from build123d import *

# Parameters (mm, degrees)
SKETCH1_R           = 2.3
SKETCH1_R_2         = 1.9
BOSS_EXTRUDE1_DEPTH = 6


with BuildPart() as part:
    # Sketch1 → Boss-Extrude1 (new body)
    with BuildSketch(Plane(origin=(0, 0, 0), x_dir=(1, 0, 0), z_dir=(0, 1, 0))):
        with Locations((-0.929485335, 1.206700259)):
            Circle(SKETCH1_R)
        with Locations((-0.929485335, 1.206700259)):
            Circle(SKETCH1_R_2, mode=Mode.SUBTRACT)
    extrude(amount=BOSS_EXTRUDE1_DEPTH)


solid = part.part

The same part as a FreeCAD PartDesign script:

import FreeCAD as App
import Part
import Sketcher
from FreeCAD import Vector
Q = App.Units.Quantity

doc = App.newDocument("Part")
body = doc.addObject("PartDesign::Body", "Body")

# Sketch on XZ plane
sketch1 = doc.addObject("Sketcher::SketchObject", "Sketch")
body.addObject(sketch1)
sketch1.AttachmentSupport = (doc.XZ_Plane, [""])
sketch1.MapMode = "FlatFace"
sketch1.addGeometry(Part.Circle(Vector(-0.929485, -1.2067, 0), Vector(0, 0, 1), 2.3), False)
sketch1.addGeometry(Part.Circle(Vector(-0.929485, -1.2067, 0), Vector(0, 0, 1), 1.9), False)
sketch1.addConstraint(Sketcher.Constraint("Coincident", 1, 3, 0, 3))
sketch1.addConstraint(Sketcher.Constraint("Diameter", 0, Q("4.6 mm")))
sketch1.addConstraint(Sketcher.Constraint("Diameter", 1, Q("3.8 mm")))
sketch1.addConstraint(Sketcher.Constraint("DistanceY", 0, 3, -1, 1, Q("1.2067 mm")))
sketch1.addConstraint(Sketcher.Constraint("DistanceX", 0, 3, -1, 1, Q("0.929485 mm")))
pad1 = doc.addObject("PartDesign::Pad", "Pad")
body.addObject(pad1)
pad1.Profile = sketch1
pad1.Length = 6
pad1.Reversed = True

doc.recompute()
